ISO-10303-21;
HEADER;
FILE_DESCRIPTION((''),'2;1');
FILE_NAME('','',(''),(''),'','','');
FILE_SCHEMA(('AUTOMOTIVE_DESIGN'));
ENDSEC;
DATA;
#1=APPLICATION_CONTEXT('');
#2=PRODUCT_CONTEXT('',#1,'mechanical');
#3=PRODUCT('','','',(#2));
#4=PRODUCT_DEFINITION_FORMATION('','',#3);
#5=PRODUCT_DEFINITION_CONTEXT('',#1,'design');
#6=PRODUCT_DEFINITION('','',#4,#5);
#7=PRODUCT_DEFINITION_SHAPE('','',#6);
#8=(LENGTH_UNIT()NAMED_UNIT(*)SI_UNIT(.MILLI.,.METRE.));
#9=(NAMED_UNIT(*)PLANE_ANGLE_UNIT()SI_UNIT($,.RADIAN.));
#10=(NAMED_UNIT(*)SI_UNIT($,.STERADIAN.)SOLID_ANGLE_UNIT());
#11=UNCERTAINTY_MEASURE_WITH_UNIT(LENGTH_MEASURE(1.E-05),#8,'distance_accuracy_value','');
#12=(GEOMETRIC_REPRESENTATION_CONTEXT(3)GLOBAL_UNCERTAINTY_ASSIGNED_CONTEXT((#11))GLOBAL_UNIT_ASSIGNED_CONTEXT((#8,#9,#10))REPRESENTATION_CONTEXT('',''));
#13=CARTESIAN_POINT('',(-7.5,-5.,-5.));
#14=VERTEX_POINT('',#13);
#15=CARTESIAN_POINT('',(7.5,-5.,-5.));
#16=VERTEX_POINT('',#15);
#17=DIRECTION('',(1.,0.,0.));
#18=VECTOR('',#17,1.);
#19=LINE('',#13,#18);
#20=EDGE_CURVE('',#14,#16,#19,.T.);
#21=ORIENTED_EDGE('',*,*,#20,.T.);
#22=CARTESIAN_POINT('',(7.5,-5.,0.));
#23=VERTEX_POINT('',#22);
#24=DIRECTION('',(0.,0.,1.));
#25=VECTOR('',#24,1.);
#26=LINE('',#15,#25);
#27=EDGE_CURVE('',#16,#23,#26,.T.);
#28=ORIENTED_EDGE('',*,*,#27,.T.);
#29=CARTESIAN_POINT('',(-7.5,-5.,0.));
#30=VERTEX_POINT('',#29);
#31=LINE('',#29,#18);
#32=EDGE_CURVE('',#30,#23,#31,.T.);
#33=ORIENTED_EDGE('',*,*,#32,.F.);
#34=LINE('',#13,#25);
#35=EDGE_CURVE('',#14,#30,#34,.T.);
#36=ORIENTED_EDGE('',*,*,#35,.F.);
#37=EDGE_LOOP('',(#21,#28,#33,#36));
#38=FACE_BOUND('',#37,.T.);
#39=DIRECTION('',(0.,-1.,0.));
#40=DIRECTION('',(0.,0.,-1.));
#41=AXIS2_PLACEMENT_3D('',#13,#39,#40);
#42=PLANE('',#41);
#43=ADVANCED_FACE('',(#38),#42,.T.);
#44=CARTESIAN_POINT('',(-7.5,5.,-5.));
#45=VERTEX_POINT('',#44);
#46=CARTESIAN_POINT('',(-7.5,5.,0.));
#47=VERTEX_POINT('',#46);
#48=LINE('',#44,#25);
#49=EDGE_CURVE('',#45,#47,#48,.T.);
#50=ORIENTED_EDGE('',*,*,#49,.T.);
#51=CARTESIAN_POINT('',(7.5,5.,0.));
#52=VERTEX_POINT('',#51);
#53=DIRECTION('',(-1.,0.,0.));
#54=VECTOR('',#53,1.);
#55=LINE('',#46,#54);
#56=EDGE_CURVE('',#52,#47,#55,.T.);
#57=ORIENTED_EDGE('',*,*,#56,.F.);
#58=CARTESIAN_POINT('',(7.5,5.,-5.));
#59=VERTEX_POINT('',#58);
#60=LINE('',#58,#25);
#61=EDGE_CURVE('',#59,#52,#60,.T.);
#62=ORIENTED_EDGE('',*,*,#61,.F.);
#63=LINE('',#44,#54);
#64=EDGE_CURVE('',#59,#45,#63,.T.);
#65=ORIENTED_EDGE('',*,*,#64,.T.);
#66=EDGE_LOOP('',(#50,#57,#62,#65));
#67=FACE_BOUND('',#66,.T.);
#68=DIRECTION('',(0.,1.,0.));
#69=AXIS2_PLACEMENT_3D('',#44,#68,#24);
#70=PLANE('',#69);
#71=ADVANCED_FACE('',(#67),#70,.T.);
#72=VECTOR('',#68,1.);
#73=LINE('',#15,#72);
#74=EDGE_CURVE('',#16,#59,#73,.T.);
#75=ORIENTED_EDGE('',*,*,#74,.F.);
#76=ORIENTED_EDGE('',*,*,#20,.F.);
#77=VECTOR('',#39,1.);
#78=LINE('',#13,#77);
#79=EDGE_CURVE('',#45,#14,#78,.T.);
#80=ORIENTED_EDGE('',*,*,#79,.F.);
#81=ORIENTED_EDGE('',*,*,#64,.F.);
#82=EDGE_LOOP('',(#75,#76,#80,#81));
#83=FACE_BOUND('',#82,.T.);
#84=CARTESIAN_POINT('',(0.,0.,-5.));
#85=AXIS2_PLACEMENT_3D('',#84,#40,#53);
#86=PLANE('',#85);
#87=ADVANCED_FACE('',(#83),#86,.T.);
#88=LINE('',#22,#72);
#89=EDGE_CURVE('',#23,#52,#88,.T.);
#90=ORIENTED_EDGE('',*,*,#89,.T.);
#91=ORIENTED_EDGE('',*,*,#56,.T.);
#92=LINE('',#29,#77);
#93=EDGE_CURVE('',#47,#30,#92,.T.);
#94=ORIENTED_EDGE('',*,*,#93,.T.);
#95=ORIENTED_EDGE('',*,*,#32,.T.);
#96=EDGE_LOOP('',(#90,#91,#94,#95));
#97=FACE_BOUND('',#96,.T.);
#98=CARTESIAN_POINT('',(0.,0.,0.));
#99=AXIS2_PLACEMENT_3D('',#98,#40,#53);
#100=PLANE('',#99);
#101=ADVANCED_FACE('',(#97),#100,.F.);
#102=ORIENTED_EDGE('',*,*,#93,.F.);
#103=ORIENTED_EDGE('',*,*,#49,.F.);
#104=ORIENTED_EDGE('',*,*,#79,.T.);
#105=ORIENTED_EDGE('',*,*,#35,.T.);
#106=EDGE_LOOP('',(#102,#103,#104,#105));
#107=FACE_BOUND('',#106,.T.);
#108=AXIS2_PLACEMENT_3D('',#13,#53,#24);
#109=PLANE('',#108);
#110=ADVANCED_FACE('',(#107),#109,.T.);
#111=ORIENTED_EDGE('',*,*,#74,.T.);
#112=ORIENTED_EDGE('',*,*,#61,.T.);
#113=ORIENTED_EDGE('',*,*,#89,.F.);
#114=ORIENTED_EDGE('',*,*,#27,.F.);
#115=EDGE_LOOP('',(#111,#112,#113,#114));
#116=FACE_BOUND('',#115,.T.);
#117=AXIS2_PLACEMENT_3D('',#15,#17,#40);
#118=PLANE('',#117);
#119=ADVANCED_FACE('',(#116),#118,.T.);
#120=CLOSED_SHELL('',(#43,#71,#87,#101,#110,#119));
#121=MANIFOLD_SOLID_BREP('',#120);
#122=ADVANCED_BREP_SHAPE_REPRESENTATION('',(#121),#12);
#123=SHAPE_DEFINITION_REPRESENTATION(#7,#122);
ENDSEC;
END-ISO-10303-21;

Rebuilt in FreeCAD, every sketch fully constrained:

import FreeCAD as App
import Part
import Sketcher
from FreeCAD import Vector
Q = App.Units.Quantity

doc = App.newDocument("Part")
params = doc.addObject("Spreadsheet::Sheet", "Params")
for row, (alias, value) in enumerate([
    ("sketch1_width", "15 mm"),
    ("sketch1_height", "10 mm"),
    ("pad1_length", "5 mm"),
], start=1):
    params.set(f"A{row}", alias)
    params.set(f"B{row}", "=" + value)
    params.setAlias(f"B{row}", alias)

body = doc.addObject("PartDesign::Body", "Body")

# Sketch on XY plane
sketch1 = doc.addObject("Sketcher::SketchObject", "Sketch")
body.addObject(sketch1)
sketch1.AttachmentSupport = (doc.XY_Plane, [""])
sketch1.MapMode = "FlatFace"
sketch1.addGeometry(Part.LineSegment(Vector(-7.5, 5, 0), Vector(-7.5, -5, 0)), False)
sketch1.addGeometry(Part.LineSegment(Vector(-7.5, -5, 0), Vector(7.5, -5, 0)), False)
sketch1.addGeometry(Part.LineSegment(Vector(7.5, -5, 0), Vector(7.5, 5, 0)), False)
sketch1.addGeometry(Part.LineSegment(Vector(7.5, 5, 0), Vector(-7.5, 5, 0)), False)
sketch1.addConstraint(Sketcher.Constraint("Coincident", 0, 2, 1, 1))
sketch1.addConstraint(Sketcher.Constraint("Coincident", 1, 2, 2, 1))
sketch1.addConstraint(Sketcher.Constraint("Coincident", 2, 2, 3, 1))
sketch1.addConstraint(Sketcher.Constraint("Coincident", 3, 2, 0, 1))
sketch1.addConstraint(Sketcher.Constraint("Vertical", 0))
sketch1.addConstraint(Sketcher.Constraint("Horizontal", 1))
sketch1.addConstraint(Sketcher.Constraint("Vertical", 2))
sketch1.addConstraint(Sketcher.Constraint("Horizontal", 3))
sketch1.addConstraint(Sketcher.Constraint("Symmetric", 0, 2, 2, 2, -1, 1))
sketch1.addConstraint(Sketcher.Constraint("DistanceX", 1, 1, 1, 2, Q("15 mm")))
sketch1.addConstraint(Sketcher.Constraint("DistanceY", 0, 2, 0, 1, Q("10 mm")))
sketch1.setExpression("Constraints[9]", "Params.sketch1_width")
sketch1.setExpression("Constraints[10]", "Params.sketch1_height")
pad1 = doc.addObject("PartDesign::Pad", "Pad")
body.addObject(pad1)
pad1.Profile = sketch1
pad1.setExpression("Length", "Params.pad1_length")
pad1.Reversed = True

doc.recompute()
